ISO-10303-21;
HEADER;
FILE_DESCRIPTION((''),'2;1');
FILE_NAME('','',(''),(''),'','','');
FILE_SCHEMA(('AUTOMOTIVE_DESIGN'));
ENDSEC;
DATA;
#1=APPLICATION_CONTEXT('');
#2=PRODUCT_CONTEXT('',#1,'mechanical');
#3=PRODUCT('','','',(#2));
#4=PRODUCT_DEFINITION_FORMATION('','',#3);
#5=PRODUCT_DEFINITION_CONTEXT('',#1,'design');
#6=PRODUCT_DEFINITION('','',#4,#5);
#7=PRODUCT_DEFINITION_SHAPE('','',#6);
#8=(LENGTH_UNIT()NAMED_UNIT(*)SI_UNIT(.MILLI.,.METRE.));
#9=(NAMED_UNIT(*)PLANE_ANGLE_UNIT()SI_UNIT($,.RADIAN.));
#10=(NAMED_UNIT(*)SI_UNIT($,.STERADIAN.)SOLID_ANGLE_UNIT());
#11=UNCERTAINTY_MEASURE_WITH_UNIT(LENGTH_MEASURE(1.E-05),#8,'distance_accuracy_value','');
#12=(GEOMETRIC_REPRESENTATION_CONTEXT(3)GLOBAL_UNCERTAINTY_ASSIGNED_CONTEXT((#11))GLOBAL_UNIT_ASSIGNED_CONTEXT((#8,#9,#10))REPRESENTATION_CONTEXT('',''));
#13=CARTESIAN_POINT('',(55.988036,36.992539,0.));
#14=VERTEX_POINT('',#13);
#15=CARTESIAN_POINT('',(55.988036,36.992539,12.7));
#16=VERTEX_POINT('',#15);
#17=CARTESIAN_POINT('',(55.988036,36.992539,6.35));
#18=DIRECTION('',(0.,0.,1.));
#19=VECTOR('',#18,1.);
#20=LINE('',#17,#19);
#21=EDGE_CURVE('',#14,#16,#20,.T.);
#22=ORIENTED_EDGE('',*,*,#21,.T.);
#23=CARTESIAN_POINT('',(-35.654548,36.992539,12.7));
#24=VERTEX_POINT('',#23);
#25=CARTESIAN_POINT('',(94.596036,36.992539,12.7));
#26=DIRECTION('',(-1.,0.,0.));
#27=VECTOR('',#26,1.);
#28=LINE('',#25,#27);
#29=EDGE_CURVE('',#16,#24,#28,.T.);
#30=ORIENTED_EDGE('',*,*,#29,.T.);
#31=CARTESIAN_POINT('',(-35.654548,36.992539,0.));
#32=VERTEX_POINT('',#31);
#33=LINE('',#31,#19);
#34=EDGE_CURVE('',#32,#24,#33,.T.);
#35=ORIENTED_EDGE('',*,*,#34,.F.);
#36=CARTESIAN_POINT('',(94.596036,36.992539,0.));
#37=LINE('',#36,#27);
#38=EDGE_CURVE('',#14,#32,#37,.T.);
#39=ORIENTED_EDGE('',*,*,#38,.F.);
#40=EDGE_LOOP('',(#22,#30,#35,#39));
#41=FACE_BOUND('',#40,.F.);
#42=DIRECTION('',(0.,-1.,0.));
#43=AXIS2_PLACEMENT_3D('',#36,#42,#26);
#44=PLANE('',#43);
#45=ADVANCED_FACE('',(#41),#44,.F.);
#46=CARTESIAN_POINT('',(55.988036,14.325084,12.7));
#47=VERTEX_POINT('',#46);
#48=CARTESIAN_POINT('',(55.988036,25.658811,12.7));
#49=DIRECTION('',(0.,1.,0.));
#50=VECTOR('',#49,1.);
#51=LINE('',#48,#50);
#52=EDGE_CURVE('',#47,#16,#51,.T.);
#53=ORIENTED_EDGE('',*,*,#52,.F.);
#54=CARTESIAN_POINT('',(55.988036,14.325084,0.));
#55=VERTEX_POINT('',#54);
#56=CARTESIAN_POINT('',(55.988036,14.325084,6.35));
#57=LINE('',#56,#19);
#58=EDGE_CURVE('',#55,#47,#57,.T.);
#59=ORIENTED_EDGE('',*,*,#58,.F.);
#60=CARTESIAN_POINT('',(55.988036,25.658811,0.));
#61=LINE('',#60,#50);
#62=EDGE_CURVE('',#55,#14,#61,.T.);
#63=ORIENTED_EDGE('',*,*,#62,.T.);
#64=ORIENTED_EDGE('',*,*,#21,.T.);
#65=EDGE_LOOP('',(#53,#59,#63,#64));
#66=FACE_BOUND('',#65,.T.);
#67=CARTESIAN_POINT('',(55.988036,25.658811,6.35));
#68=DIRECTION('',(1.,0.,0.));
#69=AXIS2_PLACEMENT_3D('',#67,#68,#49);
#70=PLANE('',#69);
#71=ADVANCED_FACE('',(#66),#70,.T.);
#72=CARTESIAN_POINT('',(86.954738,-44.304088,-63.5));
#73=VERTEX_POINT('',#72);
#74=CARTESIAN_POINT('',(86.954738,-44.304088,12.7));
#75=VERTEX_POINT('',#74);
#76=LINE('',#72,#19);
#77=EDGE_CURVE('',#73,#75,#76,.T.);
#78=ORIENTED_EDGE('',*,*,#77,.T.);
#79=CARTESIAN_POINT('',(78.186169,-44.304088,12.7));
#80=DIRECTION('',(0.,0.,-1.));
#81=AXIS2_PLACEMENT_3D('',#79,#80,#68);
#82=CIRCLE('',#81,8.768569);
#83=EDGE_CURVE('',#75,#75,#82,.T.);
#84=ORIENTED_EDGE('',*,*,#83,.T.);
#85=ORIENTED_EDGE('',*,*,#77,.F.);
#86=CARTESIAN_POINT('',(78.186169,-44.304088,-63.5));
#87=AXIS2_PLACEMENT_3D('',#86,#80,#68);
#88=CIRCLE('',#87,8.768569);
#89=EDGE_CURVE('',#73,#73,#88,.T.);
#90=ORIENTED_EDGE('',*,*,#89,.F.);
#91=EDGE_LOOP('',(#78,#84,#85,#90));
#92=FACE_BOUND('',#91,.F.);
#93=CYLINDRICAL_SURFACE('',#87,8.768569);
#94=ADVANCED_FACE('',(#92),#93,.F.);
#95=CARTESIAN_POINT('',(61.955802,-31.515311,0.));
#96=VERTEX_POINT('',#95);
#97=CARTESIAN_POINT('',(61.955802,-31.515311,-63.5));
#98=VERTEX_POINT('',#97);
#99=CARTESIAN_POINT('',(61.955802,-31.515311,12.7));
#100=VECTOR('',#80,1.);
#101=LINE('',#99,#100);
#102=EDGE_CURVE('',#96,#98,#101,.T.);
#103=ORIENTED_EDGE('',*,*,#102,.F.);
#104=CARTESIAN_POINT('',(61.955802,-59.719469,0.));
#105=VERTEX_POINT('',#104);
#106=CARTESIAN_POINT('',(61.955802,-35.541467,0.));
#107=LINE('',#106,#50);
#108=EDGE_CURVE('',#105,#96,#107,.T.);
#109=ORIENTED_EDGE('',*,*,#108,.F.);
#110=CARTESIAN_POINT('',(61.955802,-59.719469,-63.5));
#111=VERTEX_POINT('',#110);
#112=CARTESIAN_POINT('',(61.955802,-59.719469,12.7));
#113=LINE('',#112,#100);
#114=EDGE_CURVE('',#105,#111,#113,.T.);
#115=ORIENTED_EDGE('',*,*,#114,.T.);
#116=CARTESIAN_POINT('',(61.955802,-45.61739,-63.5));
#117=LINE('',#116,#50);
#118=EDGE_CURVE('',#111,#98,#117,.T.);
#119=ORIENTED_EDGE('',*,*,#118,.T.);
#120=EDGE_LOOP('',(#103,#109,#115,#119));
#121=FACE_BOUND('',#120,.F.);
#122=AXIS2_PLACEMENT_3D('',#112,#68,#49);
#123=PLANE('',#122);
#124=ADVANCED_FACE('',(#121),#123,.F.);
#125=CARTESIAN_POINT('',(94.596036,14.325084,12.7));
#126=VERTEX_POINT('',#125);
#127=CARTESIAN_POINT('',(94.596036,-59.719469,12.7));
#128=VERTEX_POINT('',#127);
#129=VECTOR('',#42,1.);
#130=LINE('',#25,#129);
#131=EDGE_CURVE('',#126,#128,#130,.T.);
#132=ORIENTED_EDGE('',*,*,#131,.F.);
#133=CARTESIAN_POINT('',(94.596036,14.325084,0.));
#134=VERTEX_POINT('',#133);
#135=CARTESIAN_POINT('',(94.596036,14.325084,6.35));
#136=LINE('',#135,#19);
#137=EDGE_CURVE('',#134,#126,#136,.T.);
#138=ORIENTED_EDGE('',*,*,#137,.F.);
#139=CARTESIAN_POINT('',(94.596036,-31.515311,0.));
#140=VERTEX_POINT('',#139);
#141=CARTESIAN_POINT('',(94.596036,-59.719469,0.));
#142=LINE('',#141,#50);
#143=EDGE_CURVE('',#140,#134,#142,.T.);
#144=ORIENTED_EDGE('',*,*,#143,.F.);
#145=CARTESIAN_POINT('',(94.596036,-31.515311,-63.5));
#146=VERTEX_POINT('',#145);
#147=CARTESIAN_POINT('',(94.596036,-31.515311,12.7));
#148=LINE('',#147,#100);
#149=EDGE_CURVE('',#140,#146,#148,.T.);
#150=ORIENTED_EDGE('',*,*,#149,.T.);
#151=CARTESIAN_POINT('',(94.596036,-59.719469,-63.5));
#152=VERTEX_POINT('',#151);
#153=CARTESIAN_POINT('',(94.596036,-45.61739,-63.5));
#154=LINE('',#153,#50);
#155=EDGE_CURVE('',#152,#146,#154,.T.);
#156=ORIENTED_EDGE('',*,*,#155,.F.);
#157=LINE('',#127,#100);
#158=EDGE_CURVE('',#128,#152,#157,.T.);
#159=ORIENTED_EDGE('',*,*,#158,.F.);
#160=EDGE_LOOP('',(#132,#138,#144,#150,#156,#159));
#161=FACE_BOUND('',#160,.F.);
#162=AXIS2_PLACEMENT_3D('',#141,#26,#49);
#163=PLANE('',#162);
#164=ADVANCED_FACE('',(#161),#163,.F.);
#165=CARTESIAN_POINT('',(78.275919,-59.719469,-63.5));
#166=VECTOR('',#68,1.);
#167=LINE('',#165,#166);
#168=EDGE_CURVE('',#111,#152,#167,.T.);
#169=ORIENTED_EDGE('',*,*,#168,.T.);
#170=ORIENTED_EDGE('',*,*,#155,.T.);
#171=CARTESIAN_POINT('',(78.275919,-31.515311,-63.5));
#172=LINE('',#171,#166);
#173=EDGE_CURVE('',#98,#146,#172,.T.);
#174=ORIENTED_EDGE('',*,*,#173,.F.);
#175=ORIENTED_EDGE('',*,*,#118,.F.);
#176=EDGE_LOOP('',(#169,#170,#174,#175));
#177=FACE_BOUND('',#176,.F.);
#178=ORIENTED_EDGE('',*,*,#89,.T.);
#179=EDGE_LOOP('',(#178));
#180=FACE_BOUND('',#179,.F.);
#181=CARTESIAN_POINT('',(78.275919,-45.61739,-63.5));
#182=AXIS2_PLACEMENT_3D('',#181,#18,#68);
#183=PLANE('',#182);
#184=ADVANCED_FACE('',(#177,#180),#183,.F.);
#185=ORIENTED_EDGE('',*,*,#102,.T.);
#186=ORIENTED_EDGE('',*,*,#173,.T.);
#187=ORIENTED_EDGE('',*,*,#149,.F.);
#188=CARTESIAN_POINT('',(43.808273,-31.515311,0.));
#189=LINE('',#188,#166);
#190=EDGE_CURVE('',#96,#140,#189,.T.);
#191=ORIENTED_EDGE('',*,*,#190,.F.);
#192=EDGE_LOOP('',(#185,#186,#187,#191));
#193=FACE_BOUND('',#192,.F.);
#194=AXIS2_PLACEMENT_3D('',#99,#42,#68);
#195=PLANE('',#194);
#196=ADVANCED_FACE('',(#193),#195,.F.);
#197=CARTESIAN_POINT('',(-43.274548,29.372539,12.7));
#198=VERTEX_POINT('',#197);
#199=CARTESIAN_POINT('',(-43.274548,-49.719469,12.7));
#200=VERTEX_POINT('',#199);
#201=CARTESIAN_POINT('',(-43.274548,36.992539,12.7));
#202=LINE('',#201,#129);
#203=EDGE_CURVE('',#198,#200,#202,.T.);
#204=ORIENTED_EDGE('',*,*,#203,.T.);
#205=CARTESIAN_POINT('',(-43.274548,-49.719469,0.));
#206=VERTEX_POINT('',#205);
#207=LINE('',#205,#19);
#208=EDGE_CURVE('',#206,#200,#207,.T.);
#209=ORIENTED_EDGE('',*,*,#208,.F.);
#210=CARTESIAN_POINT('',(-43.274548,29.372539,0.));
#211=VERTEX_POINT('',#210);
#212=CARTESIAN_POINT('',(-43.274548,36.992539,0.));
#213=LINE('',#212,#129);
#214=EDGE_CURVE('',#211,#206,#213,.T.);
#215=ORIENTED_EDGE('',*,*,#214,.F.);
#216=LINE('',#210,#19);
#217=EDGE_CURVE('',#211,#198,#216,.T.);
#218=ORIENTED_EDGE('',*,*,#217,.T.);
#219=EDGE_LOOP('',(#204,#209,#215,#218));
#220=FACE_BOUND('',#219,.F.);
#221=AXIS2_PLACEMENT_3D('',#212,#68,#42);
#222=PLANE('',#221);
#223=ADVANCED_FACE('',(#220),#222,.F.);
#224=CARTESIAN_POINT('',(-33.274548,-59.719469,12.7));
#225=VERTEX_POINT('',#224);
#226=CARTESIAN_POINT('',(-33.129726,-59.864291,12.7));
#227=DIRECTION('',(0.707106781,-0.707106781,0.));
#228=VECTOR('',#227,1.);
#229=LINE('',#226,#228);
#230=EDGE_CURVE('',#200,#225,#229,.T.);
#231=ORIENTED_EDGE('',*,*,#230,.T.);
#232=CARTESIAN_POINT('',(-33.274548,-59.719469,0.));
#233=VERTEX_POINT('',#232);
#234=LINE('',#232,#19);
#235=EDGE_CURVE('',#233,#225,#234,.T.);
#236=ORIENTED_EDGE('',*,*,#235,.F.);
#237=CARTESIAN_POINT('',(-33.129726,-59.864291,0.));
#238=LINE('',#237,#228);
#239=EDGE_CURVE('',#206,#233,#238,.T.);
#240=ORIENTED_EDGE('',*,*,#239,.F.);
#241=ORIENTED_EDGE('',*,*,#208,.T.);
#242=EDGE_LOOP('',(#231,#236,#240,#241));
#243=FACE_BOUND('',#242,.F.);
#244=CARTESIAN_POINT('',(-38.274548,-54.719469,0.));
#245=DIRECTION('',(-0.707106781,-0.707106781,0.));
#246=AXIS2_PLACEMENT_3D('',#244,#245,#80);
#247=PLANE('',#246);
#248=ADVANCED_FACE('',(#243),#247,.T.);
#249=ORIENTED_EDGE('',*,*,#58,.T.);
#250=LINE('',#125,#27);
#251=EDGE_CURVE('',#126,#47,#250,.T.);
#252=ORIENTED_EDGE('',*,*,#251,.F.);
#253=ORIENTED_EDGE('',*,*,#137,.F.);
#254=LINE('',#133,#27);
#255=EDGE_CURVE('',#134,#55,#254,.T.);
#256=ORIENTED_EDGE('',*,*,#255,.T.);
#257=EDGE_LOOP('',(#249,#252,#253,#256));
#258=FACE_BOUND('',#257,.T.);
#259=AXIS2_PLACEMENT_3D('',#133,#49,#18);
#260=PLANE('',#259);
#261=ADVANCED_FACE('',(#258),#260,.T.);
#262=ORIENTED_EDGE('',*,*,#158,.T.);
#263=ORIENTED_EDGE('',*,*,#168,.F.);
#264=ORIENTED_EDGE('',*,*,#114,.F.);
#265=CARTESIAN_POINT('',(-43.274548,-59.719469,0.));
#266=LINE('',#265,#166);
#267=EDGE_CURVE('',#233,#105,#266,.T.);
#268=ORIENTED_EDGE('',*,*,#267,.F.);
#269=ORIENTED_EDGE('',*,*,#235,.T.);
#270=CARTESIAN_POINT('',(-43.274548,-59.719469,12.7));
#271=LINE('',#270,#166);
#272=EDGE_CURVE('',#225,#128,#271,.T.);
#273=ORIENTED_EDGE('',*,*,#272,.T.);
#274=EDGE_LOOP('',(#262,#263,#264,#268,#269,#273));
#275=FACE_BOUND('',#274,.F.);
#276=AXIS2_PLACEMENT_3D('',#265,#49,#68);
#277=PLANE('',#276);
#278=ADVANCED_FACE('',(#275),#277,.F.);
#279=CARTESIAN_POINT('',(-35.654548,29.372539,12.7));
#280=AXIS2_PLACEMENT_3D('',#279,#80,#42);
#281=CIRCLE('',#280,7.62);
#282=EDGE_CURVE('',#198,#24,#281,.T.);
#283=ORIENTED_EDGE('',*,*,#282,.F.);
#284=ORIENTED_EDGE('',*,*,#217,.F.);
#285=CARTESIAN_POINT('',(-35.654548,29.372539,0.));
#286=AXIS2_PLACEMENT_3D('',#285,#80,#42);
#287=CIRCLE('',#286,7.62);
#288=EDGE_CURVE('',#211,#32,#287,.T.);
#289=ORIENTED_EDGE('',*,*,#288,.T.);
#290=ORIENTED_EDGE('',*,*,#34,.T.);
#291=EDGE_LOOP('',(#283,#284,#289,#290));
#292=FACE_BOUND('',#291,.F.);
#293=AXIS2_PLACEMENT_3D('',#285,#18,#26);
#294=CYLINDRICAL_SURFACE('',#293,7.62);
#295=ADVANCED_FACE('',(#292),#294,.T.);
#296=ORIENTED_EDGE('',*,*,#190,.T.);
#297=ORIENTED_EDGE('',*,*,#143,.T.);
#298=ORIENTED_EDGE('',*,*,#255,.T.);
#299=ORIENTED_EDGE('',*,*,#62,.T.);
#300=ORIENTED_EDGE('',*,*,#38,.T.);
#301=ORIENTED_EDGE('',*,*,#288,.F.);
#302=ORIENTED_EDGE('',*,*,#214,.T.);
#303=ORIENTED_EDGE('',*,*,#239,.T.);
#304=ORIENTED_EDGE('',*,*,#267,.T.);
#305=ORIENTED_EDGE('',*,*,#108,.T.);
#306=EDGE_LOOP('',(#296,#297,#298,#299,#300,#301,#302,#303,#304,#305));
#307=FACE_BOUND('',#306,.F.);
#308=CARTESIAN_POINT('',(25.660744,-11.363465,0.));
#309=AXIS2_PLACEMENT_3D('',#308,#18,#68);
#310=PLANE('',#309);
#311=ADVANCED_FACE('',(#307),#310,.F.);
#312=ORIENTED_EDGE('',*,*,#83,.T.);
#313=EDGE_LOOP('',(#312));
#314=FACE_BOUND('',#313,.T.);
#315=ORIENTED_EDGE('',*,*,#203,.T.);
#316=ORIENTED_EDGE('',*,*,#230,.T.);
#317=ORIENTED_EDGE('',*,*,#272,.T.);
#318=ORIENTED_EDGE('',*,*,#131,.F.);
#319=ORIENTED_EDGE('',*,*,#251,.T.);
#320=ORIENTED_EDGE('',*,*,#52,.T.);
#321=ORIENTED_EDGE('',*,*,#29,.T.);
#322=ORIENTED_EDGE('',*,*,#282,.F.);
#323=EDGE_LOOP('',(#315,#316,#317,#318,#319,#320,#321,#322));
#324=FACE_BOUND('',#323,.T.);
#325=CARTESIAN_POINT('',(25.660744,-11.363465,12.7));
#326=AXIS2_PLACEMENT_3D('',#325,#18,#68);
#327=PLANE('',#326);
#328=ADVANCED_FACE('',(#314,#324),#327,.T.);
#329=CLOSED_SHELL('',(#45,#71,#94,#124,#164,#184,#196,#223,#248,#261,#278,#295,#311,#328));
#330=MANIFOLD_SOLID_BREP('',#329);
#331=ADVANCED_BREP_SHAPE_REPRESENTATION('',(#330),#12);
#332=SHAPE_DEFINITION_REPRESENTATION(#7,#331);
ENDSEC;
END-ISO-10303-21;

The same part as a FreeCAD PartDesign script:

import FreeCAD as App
import Part
import Sketcher

V = App.Vector
Q = App.Units.Quantity


def edges_at(feature, points):
    """Names of the edges that pass closest to the given points."""
    edges = feature.Shape.Edges
    near = lambda p: min(range(len(edges)), key=lambda i: edges[i].distToShape(Part.Vertex(*p))[0])
    return sorted({f"Edge{near(p) + 1}" for p in points})

doc = App.newDocument("Part")
body = doc.addObject("PartDesign::Body", "Body")

# Sketch on XY plane
sketch1 = doc.addObject("Sketcher::SketchObject", "Sketch")
body.addObject(sketch1)
sketch1.AttachmentSupport = (doc.XY_Plane, [""])
sketch1.MapMode = "FlatFace"
sketch1.addGeometry([
    Part.LineSegment(V(95, 37, 0), V(-43, 37, 0)),
    Part.LineSegment(V(-43, 37, 0), V(-43, -60, 0)),
    Part.LineSegment(V(-43, -60, 0), V(95, -60, 0)),
    Part.LineSegment(V(95, -60, 0), V(95, 37, 0)),
], False)
sketch1.addConstraint([
    Sketcher.Constraint("Coincident", 0, 2, 1, 1),
    Sketcher.Constraint("Coincident", 1, 2, 2, 1),
    Sketcher.Constraint("Coincident", 2, 2, 3, 1),
    Sketcher.Constraint("Coincident", 3, 2, 0, 1),
    Sketcher.Constraint("Horizontal", 0),
    Sketcher.Constraint("Vertical", 1),
    Sketcher.Constraint("Horizontal", 2),
    Sketcher.Constraint("Vertical", 3),
    Sketcher.Constraint("DistanceY", 1, 2, 1, 1, 96.712008),
    Sketcher.Constraint("DistanceX", 0, 2, 0, 1, 137.870584),
    Sketcher.Constraint("DistanceY", -1, 1, 0, 2, 36.992539),
    Sketcher.Constraint("DistanceX", 0, 2, -1, 1, 43.274548),
])
pad1 = doc.addObject("PartDesign::Pad", "Pad")
body.addObject(pad1)
pad1.Profile = sketch1
pad1.Length = Q("0.5 in")

# Sketch on XY plane
sketch2 = doc.addObject("Sketcher::SketchObject", "Sketch001")
body.addObject(sketch2)
sketch2.AttachmentSupport = (doc.XY_Plane, [""])
sketch2.MapMode = "FlatFace"
sketch2.AttachmentOffset = App.Placement(V(0, 0, 0.5 * 25.4), App.Rotation())
sketch2.addGeometry([
    Part.LineSegment(V(62, -32, 0), V(62, -60, 0)),
    Part.LineSegment(V(62, -60, 0), V(95, -60, 0)),
    Part.LineSegment(V(95, -60, 0), V(95, -32, 0)),
    Part.LineSegment(V(95, -32, 0), V(62, -32, 0)),
], False)
sketch2.addConstraint([
    Sketcher.Constraint("Coincident", 0, 2, 1, 1),
    Sketcher.Constraint("Coincident", 1, 2, 2, 1),
    Sketcher.Constraint("Coincident", 2, 2, 3, 1),
    Sketcher.Constraint("Coincident", 3, 2, 0, 1),
    Sketcher.Constraint("Vertical", 0),
    Sketcher.Constraint("Horizontal", 1),
    Sketcher.Constraint("Vertical", 2),
    Sketcher.Constraint("Horizontal", 3),
    Sketcher.Constraint("DistanceY", 0, 2, 0, 1, Q("1.1103999 in")),
    Sketcher.Constraint("DistanceX", 1, 1, 1, 2, 32.640234),
    Sketcher.Constraint("DistanceY", 0, 2, -1, 1, 59.719469),
    Sketcher.Constraint("DistanceX", -1, 1, 0, 2, 61.955802),
])
pad2 = doc.addObject("PartDesign::Pad", "Pad001")
body.addObject(pad2)
pad2.Profile = sketch2
pad2.Length = Q("3 in")
pad2.Reversed = True

# Sketch on YZ plane
sketch3 = doc.addObject("Sketcher::SketchObject", "Sketch002")
body.addObject(sketch3)
sketch3.AttachmentSupport = (doc.YZ_Plane, [""])
sketch3.MapMode = "FlatFace"
sketch3.AttachmentOffset = App.Placement(V(0, 0, 94.596036), App.Rotation())
sketch3.addGeometry([
    Part.LineSegment(V(14, 13, 0), V(14, 0, 0)),
    Part.LineSegment(V(14, 0, 0), V(37, 0, 0)),
    Part.LineSegment(V(37, 0, 0), V(37, 13, 0)),
    Part.LineSegment(V(37, 13, 0), V(14, 13, 0)),
], False)
sketch3.addConstraint([
    Sketcher.Constraint("Coincident", 0, 2, 1, 1),
    Sketcher.Constraint("Coincident", 1, 2, 2, 1),
    Sketcher.Constraint("Coincident", 2, 2, 3, 1),
    Sketcher.Constraint("Coincident", 3, 2, 0, 1),
    Sketcher.Constraint("Vertical", 0),
    Sketcher.Constraint("Horizontal", 1),
    Sketcher.Constraint("Vertical", 2),
    Sketcher.Constraint("Horizontal", 3),
    Sketcher.Constraint("PointOnObject", 0, 2, -1),
    Sketcher.Constraint("DistanceY", 0, 2, 0, 1, Q("0.5 in")),
    Sketcher.Constraint("DistanceX", 1, 1, 1, 2, 22.667455),
    Sketcher.Constraint("DistanceX", -1, 1, 1, 2, 36.992539),
])
pocket1 = doc.addObject("PartDesign::Pocket", "Pocket")
body.addObject(pocket1)
pocket1.Profile = sketch3
pocket1.Length = Q("1.52 in")

# Sketch on XY plane
sketch4 = doc.addObject("Sketcher::SketchObject", "Sketch003")
body.addObject(sketch4)
sketch4.AttachmentSupport = (doc.XY_Plane, [""])
sketch4.MapMode = "FlatFace"
sketch4.AttachmentOffset = App.Placement(V(0, 0, -2.5 * 25.4), App.Rotation())
sketch4.addGeometry(Part.Circle(V(78, -44, 0), V(0, 0, 1), 9), False)
sketch4.addConstraint([
    Sketcher.Constraint("Diameter", 0, 17.537138),
    Sketcher.Constraint("DistanceX", -1, 1, 0, 3, 78.186169),
    Sketcher.Constraint("DistanceY", 0, 3, -1, 1, 44.304088),
])
pocket2 = doc.addObject("PartDesign::Pocket", "Pocket001")
body.addObject(pocket2)
pocket2.Profile = sketch4
pocket2.Length = Q("3 in")
pocket2.Reversed = True
doc.recompute()

fillet = doc.addObject("PartDesign::Fillet", "Fillet")
body.addObject(fillet)
fillet.Base = (pocket2, edges_at(pocket2, [(-43.275, 36.993, 6.35)]))
fillet.Radius = Q("0.3 in")
doc.recompute()

chamfer = doc.addObject("PartDesign::Chamfer", "Chamfer")
body.addObject(chamfer)
chamfer.Base = (fillet, edges_at(fillet, [(-43.275, -59.719, 6.35)]))
chamfer.Size = 10

doc.recompute()
